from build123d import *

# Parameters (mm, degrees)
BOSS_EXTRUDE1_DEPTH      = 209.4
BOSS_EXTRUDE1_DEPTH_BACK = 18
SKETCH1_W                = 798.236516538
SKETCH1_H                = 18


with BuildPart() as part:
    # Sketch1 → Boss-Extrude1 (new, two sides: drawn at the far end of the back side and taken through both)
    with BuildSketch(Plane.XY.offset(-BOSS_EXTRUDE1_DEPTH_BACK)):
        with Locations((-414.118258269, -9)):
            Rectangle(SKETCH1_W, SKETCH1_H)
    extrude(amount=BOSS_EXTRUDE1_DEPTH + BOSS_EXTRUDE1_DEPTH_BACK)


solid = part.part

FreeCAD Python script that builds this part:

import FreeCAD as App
import Part
import Sketcher


def add_polygon(sketch, points):
    """Adds a closed chain of lines whose ends are joined by coincident constraints."""
    first, n = sketch.GeometryCount, len(points)
    for a, b in zip(points, points[1:] + points[:1]):
        sketch.addGeometry(Part.LineSegment(App.Vector(*a, 0), App.Vector(*b, 0)), False)
    for i in range(n):
        sketch.addConstraint(Sketcher.Constraint("Coincident", first + i, 2, first + (i + 1) % n, 1))

doc = App.newDocument("Part")
body = doc.addObject("PartDesign::Body", "Body")

# Sketch on XY plane
sketch1 = doc.addObject("Sketcher::SketchObject", "Sketch")
body.addObject(sketch1)
sketch1.AttachmentSupport = (doc.XY_Plane, [""])
sketch1.MapMode = "FlatFace"
add_polygon(sketch1, [(-813, 0), (-813, -18), (-15, -18), (-15, 0)])  # lines 0-3
sketch1.addConstraint(Sketcher.Constraint("Vertical", 0))
sketch1.addConstraint(Sketcher.Constraint("Horizontal", 1))
sketch1.addConstraint(Sketcher.Constraint("Vertical", 2))
sketch1.addConstraint(Sketcher.Constraint("Horizontal", 3))
sketch1.addConstraint(Sketcher.Constraint("PointOnObject", 2, 2, -1))
sketch1.addConstraint(Sketcher.Constraint("DistanceY", 0, 2, 0, 1, 18.0))
sketch1.addConstraint(Sketcher.Constraint("DistanceX", 1, 2, -1, 1, 15.0))
sketch1.addConstraint(Sketcher.Constraint("DistanceX", 1, 1, 1, 2, 798.236517))
pad1 = doc.addObject("PartDesign::Pad", "Pad")
body.addObject(pad1)
pad1.Profile = sketch1
pad1.Type = "TwoLengths"
pad1.Length = 209.4
pad1.Length2 = 18

doc.recompute()
